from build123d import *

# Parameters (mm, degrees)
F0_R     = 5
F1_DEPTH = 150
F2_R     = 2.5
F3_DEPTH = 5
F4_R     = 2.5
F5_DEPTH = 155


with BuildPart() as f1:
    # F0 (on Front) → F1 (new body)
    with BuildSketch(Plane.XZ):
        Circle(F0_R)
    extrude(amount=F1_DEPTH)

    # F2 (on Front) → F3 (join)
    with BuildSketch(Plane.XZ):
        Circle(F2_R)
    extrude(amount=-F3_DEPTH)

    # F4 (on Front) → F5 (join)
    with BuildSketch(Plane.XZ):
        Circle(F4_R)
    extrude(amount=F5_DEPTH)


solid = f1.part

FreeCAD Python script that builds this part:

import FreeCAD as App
import Part
import Sketcher

V = App.Vector
Q = App.Units.Quantity

doc = App.newDocument("Part")
body = doc.addObject("PartDesign::Body", "Body")

# Sketch on XZ plane
sketch1 = body.newObject("Sketcher::SketchObject", "Sketch")
sketch1.AttachmentSupport = (doc.getObject("XZ_Plane"), [""])
sketch1.MapMode = "FlatFace"
sketch1.addGeometry(Part.Circle(V(0, 0, 0), V(0, 0, 1), 5), False)
sketch1.addConstraint(Sketcher.Constraint("Coincident", 0, 3, -1, 1))
sketch1.addConstraint(Sketcher.Constraint("Diameter", 0, Q("10 mm")))
pad1 = body.newObject("PartDesign::Pad", "Pad")
pad1.Profile = sketch1
pad1.Length = 150

# Sketch on XZ plane
sketch2 = body.newObject("Sketcher::SketchObject", "Sketch001")
sketch2.AttachmentSupport = (doc.getObject("XZ_Plane"), [""])
sketch2.MapMode = "FlatFace"
sketch2.addGeometry(Part.Circle(V(0, 0, 0), V(0, 0, 1), 2.5), False)
sketch2.addConstraint(Sketcher.Constraint("Coincident", 0, 3, -1, 1))
sketch2.addConstraint(Sketcher.Constraint("Diameter", 0, Q("5 mm")))
pad2 = body.newObject("PartDesign::Pad", "Pad001")
pad2.Profile = sketch2
pad2.Length = 5
pad2.Reversed = True

# Sketch on XZ plane
sketch3 = body.newObject("Sketcher::SketchObject", "Sketch002")
sketch3.AttachmentSupport = (doc.getObject("XZ_Plane"), [""])
sketch3.MapMode = "FlatFace"
sketch3.addGeometry(Part.Circle(V(0, 0, 0), V(0, 0, 1), 2.5), False)
sketch3.addConstraint(Sketcher.Constraint("Coincident", 0, 3, -1, 1))
sketch3.addConstraint(Sketcher.Constraint("Diameter", 0, Q("5 mm")))
pad3 = body.newObject("PartDesign::Pad", "Pad002")
pad3.Profile = sketch3
pad3.Length = 155

doc.recompute()
